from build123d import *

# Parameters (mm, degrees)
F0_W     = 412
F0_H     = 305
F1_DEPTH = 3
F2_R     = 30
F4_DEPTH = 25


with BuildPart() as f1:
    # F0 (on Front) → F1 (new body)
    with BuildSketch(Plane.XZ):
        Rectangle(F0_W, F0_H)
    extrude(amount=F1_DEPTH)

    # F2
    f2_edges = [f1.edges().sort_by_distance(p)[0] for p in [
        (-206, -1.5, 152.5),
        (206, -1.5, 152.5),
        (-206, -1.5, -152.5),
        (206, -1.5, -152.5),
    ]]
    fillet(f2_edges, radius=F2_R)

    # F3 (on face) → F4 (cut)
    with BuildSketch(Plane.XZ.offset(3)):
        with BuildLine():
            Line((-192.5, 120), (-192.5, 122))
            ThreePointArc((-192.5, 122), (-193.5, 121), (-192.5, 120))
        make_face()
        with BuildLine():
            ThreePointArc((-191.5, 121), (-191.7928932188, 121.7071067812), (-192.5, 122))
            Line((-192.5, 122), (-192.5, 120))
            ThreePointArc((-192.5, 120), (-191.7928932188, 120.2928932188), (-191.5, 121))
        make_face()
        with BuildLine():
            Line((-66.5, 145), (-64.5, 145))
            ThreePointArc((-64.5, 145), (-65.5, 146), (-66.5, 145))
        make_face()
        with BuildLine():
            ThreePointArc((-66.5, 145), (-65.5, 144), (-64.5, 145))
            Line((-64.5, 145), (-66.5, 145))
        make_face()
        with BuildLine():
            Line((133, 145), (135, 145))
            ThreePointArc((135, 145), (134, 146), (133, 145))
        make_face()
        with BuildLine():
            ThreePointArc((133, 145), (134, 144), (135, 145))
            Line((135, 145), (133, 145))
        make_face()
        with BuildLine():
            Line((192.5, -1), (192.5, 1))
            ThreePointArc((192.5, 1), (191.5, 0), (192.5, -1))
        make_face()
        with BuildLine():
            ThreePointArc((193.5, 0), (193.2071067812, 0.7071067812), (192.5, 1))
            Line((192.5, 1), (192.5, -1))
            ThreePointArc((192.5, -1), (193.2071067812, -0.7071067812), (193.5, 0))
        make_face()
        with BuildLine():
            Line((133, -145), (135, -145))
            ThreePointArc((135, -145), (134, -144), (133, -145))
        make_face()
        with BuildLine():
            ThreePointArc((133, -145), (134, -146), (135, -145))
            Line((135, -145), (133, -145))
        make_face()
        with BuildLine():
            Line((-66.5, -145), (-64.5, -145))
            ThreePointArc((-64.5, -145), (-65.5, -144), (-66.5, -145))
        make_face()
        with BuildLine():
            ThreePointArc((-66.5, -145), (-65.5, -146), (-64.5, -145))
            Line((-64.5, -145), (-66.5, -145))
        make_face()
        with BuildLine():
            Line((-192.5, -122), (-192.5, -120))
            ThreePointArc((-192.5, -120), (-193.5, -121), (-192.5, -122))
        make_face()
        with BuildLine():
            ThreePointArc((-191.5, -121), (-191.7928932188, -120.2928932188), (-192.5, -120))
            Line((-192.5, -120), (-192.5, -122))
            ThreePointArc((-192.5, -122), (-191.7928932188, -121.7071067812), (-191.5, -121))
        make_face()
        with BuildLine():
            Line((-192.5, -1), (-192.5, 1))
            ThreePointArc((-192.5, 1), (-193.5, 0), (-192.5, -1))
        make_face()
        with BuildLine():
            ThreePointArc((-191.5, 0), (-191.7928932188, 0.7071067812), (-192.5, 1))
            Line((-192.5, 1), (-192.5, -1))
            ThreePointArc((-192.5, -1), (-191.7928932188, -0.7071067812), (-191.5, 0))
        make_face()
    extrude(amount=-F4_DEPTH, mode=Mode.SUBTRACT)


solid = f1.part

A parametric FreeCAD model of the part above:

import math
import FreeCAD as App
import Part
import Sketcher
from FreeCAD import Vector
Q = App.Units.Quantity


def edges_at(feature, points):
    """Names of the edges that pass closest to the given points."""
    edges = feature.Shape.Edges
    near = lambda p: min(range(len(edges)), key=lambda i: edges[i].distToShape(Part.Vertex(*p))[0])
    return sorted({f"Edge{near(p) + 1}" for p in points})

doc = App.newDocument("Part")
body = doc.addObject("PartDesign::Body", "Body")

# Sketch on XZ plane
sketch1 = doc.addObject("Sketcher::SketchObject", "Sketch")
body.addObject(sketch1)
sketch1.AttachmentSupport = (doc.XZ_Plane, [""])
sketch1.MapMode = "FlatFace"
sketch1.addGeometry([
    Part.LineSegment(Vector(-206, 152.5, 0), Vector(-206, -152.5, 0)),
    Part.LineSegment(Vector(-206, -152.5, 0), Vector(206, -152.5, 0)),
    Part.LineSegment(Vector(206, -152.5, 0), Vector(206, 152.5, 0)),
    Part.LineSegment(Vector(206, 152.5, 0), Vector(-206, 152.5, 0)),
], False)
sketch1.addConstraint([
    Sketcher.Constraint("Coincident", 0, 2, 1, 1),
    Sketcher.Constraint("Coincident", 1, 2, 2, 1),
    Sketcher.Constraint("Coincident", 2, 2, 3, 1),
    Sketcher.Constraint("Coincident", 3, 2, 0, 1),
    Sketcher.Constraint("Vertical", 0),
    Sketcher.Constraint("Horizontal", 1),
    Sketcher.Constraint("Vertical", 2),
    Sketcher.Constraint("Horizontal", 3),
    Sketcher.Constraint("Symmetric", 0, 2, 2, 2, -1, 1),
    Sketcher.Constraint("DistanceX", 1, 1, 1, 2, Q("412 mm")),
    Sketcher.Constraint("DistanceY", 0, 2, 0, 1, Q("305 mm")),
])
pad1 = doc.addObject("PartDesign::Pad", "Pad")
body.addObject(pad1)
pad1.Profile = sketch1
pad1.Length = 3
doc.recompute()

fillet = doc.addObject("PartDesign::Fillet", "Fillet")
body.addObject(fillet)
fillet.Base = (pad1, edges_at(pad1, [
    (-206, -1.5, 152.5),
    (206, -1.5, 152.5),
    (-206, -1.5, -152.5),
    (206, -1.5, -152.5),
]))
fillet.Radius = 30

# Sketch on XZ plane
sketch2 = doc.addObject("Sketcher::SketchObject", "Sketch001")
body.addObject(sketch2)
sketch2.AttachmentSupport = (doc.XZ_Plane, [""])
sketch2.MapMode = "FlatFace"
sketch2.AttachmentOffset = App.Placement(Vector(0, 0, 3), App.Rotation())
sketch2.addGeometry([
    Part.ArcOfCircle(Part.Circle(Vector(-192.5, 121, 0), Vector(0, 0, 1), 1), math.radians(90), math.radians(270)),  # 0
    Part.ArcOfCircle(Part.Circle(Vector(-192.5, 121, 0), Vector(0, 0, 1), 1), math.radians(-90), math.radians(0)),  # 1
    Part.ArcOfCircle(Part.Circle(Vector(-192.5, 121, 0), Vector(0, 0, 1), 1), math.radians(0), math.radians(90)),  # 2
    Part.Circle(Vector(-65.5, 145, 0), Vector(0, 0, 1), 1),  # 3
    Part.Circle(Vector(134, 145, 0), Vector(0, 0, 1), 1),  # 4
    Part.ArcOfCircle(Part.Circle(Vector(192.5, 0, 0), Vector(0, 0, 1), 1), math.radians(90), math.radians(270)),  # 5
    Part.ArcOfCircle(Part.Circle(Vector(192.5, 0, 0), Vector(0, 0, 1), 1), math.radians(-90), math.radians(0)),  # 6
    Part.ArcOfCircle(Part.Circle(Vector(192.5, 0, 0), Vector(0, 0, 1), 1), math.radians(0), math.radians(90)),  # 7
    Part.Circle(Vector(134, -145, 0), Vector(0, 0, 1), 1),  # 8
    Part.Circle(Vector(-65.5, -145, 0), Vector(0, 0, 1), 1),  # 9
    Part.ArcOfCircle(Part.Circle(Vector(-192.5, -121, 0), Vector(0, 0, 1), 1), math.radians(90), math.radians(270)),  # 10
    Part.ArcOfCircle(Part.Circle(Vector(-192.5, -121, 0), Vector(0, 0, 1), 1), math.radians(-90), math.radians(0)),  # 11
    Part.ArcOfCircle(Part.Circle(Vector(-192.5, -121, 0), Vector(0, 0, 1), 1), math.radians(0), math.radians(90)),  # 12
    Part.ArcOfCircle(Part.Circle(Vector(-192.5, 0, 0), Vector(0, 0, 1), 1), math.radians(90), math.radians(270)),  # 13
    Part.ArcOfCircle(Part.Circle(Vector(-192.5, 0, 0), Vector(0, 0, 1), 1), math.radians(-90), math.radians(0)),  # 14
    Part.ArcOfCircle(Part.Circle(Vector(-192.5, 0, 0), Vector(0, 0, 1), 1), math.radians(0), math.radians(90)),  # 15
], False)
sketch2.addConstraint([
    Sketcher.Constraint("Tangent", 0, 2, 1, 1),
    Sketcher.Constraint("Tangent", 1, 2, 2, 1),
    Sketcher.Constraint("Tangent", 2, 2, 0, 1),
    Sketcher.Constraint("Tangent", 5, 2, 6, 1),
    Sketcher.Constraint("Tangent", 6, 2, 7, 1),
    Sketcher.Constraint("Tangent", 7, 2, 5, 1),
    Sketcher.Constraint("Tangent", 10, 2, 11, 1),
    Sketcher.Constraint("Tangent", 11, 2, 12, 1),
    Sketcher.Constraint("Tangent", 12, 2, 10, 1),
    Sketcher.Constraint("Tangent", 13, 2, 14, 1),
    Sketcher.Constraint("Tangent", 14, 2, 15, 1),
    Sketcher.Constraint("Tangent", 15, 2, 13, 1),
    Sketcher.Constraint("Equal", 2, 3),
    Sketcher.Constraint("Equal", 3, 4),
    Sketcher.Constraint("Equal", 4, 5),
    Sketcher.Constraint("Equal", 7, 8),
    Sketcher.Constraint("Equal", 8, 9),
    Sketcher.Constraint("Equal", 9, 10),
    Sketcher.Constraint("Equal", 12, 13),
    Sketcher.Constraint("Symmetric", 5, 3, 13, 3, -1, 1),
    Sketcher.Constraint("Symmetric", 5, 2, 13, 2, -2),
    Sketcher.Constraint("Symmetric", 4, 3, 8, 3, -1),
    Sketcher.Constraint("Symmetric", 3, 3, 9, 3, -1),
    Sketcher.Constraint("Symmetric", 0, 3, 10, 3, -1),
    Sketcher.Constraint("PointOnObject", 6, 2, -1),
    Sketcher.Constraint("PointOnObject", 14, 2, -1),
    Sketcher.Constraint("Horizontal", 3, 3, 4, 3),
    Sketcher.Constraint("Horizontal", 2, 3, 1, 2),
    Sketcher.Constraint("Horizontal", 12, 3, 11, 2),
    Sketcher.Constraint("Vertical", 12, 3, 13, 3),
    Sketcher.Constraint("Vertical", 15, 3, 0, 2),
    Sketcher.Constraint("Vertical", 0, 2, 2, 2),
    Sketcher.Constraint("Vertical", 7, 3, 5, 2),
    Sketcher.Constraint("Vertical", 5, 2, 7, 2),
    Sketcher.Constraint("Vertical", 2, 2, 10, 2),
    Sketcher.Constraint("Vertical", 10, 2, 12, 2),
    Sketcher.Constraint("Vertical", 13, 2, 15, 2),
    Sketcher.Constraint("Diameter", 3, Q("2 mm")),
    Sketcher.Constraint("DistanceY", -1, 1, 0, 3, Q("121 mm")),
    Sketcher.Constraint("DistanceY", -1, 1, 3, 3, Q("145 mm")),
    Sketcher.Constraint("DistanceX", -1, 1, 4, 3, Q("134 mm")),
    Sketcher.Constraint("DistanceX", 0, 3, 3, 3, Q("127 mm")),
    Sketcher.Constraint("DistanceX", 3, 3, 5, 3, Q("258 mm")),
])
pocket1 = doc.addObject("PartDesign::Pocket", "Pocket")
body.addObject(pocket1)
pocket1.Profile = sketch2
pocket1.Length = 25

doc.recompute()
